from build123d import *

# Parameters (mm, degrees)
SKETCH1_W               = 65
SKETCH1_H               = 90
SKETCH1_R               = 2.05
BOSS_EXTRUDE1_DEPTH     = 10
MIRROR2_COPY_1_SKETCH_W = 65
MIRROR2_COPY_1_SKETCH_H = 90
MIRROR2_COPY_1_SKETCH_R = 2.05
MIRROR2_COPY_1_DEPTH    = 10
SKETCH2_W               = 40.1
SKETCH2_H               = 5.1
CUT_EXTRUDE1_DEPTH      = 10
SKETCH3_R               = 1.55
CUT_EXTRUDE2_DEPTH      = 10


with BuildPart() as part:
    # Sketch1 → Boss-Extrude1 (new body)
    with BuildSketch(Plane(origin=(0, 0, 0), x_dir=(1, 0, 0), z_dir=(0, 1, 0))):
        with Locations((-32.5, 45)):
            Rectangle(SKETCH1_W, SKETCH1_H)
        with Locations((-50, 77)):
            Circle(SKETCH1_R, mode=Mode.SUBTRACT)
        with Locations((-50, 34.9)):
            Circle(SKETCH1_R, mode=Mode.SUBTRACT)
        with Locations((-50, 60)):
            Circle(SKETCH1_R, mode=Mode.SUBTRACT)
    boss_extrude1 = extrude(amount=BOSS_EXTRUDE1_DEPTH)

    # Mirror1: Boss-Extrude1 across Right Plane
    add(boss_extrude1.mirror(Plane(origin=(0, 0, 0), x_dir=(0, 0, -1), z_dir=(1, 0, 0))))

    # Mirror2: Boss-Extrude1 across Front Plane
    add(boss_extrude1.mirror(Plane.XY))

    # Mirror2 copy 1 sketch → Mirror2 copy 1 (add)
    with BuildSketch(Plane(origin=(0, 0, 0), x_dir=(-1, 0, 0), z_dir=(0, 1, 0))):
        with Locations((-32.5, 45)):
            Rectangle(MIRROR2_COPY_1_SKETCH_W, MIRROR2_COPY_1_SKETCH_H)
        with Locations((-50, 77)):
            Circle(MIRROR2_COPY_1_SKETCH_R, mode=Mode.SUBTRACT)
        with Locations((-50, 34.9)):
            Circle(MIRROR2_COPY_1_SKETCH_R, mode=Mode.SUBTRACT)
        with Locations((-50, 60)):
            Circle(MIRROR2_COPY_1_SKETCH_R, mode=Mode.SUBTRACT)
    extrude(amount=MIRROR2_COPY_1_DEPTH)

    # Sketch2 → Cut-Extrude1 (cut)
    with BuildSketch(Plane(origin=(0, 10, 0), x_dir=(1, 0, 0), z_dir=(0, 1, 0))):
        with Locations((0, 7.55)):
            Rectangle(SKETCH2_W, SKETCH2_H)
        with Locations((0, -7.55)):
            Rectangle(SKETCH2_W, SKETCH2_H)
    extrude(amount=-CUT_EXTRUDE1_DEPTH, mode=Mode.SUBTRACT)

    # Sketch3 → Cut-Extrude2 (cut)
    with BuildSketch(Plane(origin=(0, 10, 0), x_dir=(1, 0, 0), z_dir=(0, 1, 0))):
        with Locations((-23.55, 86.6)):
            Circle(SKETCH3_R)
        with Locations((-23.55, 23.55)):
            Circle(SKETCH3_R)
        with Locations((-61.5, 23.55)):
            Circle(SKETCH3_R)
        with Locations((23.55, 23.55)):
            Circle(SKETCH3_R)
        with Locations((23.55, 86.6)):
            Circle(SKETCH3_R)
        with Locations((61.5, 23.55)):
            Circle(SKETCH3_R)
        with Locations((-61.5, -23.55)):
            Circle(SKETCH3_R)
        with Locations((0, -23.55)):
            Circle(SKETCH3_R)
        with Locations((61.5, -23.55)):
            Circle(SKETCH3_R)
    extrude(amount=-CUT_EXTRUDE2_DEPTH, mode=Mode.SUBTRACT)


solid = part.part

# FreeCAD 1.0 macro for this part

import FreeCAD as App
import Part
import Sketcher
from FreeCAD import Vector
Q = App.Units.Quantity


def add_polygon(sketch, points):
    """Adds a closed chain of lines whose ends are joined by coincident constraints."""
    first, n = sketch.GeometryCount, len(points)
    for a, b in zip(points, points[1:] + points[:1]):
        sketch.addGeometry(Part.LineSegment(App.Vector(*a, 0), App.Vector(*b, 0)), False)
    for i in range(n):
        sketch.addConstraint(Sketcher.Constraint("Coincident", first + i, 2, first + (i + 1) % n, 1))

doc = App.newDocument("Part")
body = doc.addObject("PartDesign::Body", "Body")

sketch1 = doc.addObject("Sketcher::SketchObject", "Sketch")
body.addObject(sketch1)
sketch1.AttachmentSupport = (doc.XZ_Plane, [""])
sketch1.MapMode = "FlatFace"
add_polygon(sketch1, [(-65, -90), (-65, 0), (0, 0), (0, -90)])
sketch1.addGeometry(Part.Circle(Vector(-50, -34.9, 0), Vector(0, 0, 1), 2), False)
sketch1.addGeometry(Part.Circle(Vector(-50, -60, 0), Vector(0, 0, 1), 2), False)
sketch1.addGeometry(Part.Circle(Vector(-50, -77, 0), Vector(0, 0, 1), 2), False)
sketch1.addConstraint([
    Sketcher.Constraint("Vertical", 0),
    Sketcher.Constraint("Horizontal", 1),
    Sketcher.Constraint("Vertical", 2),
    Sketcher.Constraint("Horizontal", 3),
    Sketcher.Constraint("Coincident", 1, 2, -1, 1),
    Sketcher.Constraint("Equal", 4, 5),
    Sketcher.Constraint("Equal", 5, 6),
    Sketcher.Constraint("Vertical", 4, 3, 5, 3),
    Sketcher.Constraint("Vertical", 5, 3, 6, 3),
    Sketcher.Constraint("Diameter", 4, Q("4.1 mm")),
    Sketcher.Constraint("DistanceX", 1, 1, 1, 2, Q("65 mm")),
    Sketcher.Constraint("DistanceY", 0, 1, 0, 2, Q("90 mm")),
    Sketcher.Constraint("DistanceX", 4, 3, -1, 1, Q("50 mm")),
    Sketcher.Constraint("DistanceY", 5, 3, -1, 1, Q("60 mm")),
    Sketcher.Constraint("DistanceY", 6, 3, -1, 1, Q("77 mm")),
    Sketcher.Constraint("DistanceY", 4, 3, -1, 1, Q("34.9 mm")),
])
pad1 = doc.addObject("PartDesign::Pad", "Pad")
body.addObject(pad1)
pad1.Profile = sketch1
pad1.Length = 10
pad1.Reversed = True
doc.recompute()

mirrored = doc.addObject("PartDesign::Mirrored", "Mirrored")
body.addObject(mirrored)
mirrored.Originals = [pad1]
mirrored.MirrorPlane = (doc.YZ_Plane, [""])
body.Tip = mirrored
doc.recompute()

mirrored2 = doc.addObject("PartDesign::Mirrored", "Mirrored001")
body.addObject(mirrored2)
mirrored2.Originals = [pad1]
mirrored2.MirrorPlane = (doc.XY_Plane, [""])
body.Tip = mirrored2

sketch2 = doc.addObject("Sketcher::SketchObject", "Sketch001")
body.addObject(sketch2)
sketch2.AttachmentSupport = (doc.XZ_Plane, [""])
sketch2.MapMode = "FlatFace"
add_polygon(sketch2, [(65, 90), (65, 0), (0, 0), (0, 90)])
sketch2.addGeometry(Part.Circle(Vector(50, 34.9, 0), Vector(0, 0, 1), 2), False)
sketch2.addGeometry(Part.Circle(Vector(50, 60, 0), Vector(0, 0, 1), 2), False)
sketch2.addGeometry(Part.Circle(Vector(50, 77, 0), Vector(0, 0, 1), 2), False)
sketch2.addConstraint([
    Sketcher.Constraint("Vertical", 0),
    Sketcher.Constraint("Horizontal", 1),
    Sketcher.Constraint("Vertical", 2),
    Sketcher.Constraint("Horizontal", 3),
    Sketcher.Constraint("Coincident", 1, 2, -1, 1),
    Sketcher.Constraint("Equal", 4, 5),
    Sketcher.Constraint("Equal", 5, 6),
    Sketcher.Constraint("Vertical", 4, 3, 5, 3),
    Sketcher.Constraint("Vertical", 5, 3, 6, 3),
    Sketcher.Constraint("Diameter", 4, Q("4.1 mm")),
    Sketcher.Constraint("DistanceX", 1, 2, 1, 1, Q("65 mm")),
    Sketcher.Constraint("DistanceY", 0, 2, 0, 1, Q("90 mm")),
    Sketcher.Constraint("DistanceX", -1, 1, 4, 3, Q("50 mm")),
    Sketcher.Constraint("DistanceY", -1, 1, 5, 3, Q("60 mm")),
    Sketcher.Constraint("DistanceY", -1, 1, 6, 3, Q("77 mm")),
    Sketcher.Constraint("DistanceY", -1, 1, 4, 3, Q("34.9 mm")),
])
pad2 = doc.addObject("PartDesign::Pad", "Pad001")
body.addObject(pad2)
pad2.Profile = sketch2
pad2.Length = 10
pad2.Reversed = True

sketch3 = doc.addObject("Sketcher::SketchObject", "Sketch002")
body.addObject(sketch3)
sketch3.AttachmentSupport = (doc.XZ_Plane, [""])
sketch3.MapMode = "FlatFace"
sketch3.AttachmentOffset = App.Placement(Vector(0, 0, -10), App.Rotation())
add_polygon(sketch3, [(-20, -10), (-20, -5), (20, -5), (20, -10)])
add_polygon(sketch3, [(-20, 5), (-20, 10), (20, 10), (20, 5)])
sketch3.addConstraint([
    Sketcher.Constraint("Vertical", 0),
    Sketcher.Constraint("Horizontal", 1),
    Sketcher.Constraint("Vertical", 2),
    Sketcher.Constraint("Horizontal", 3),
    Sketcher.Constraint("Vertical", 4),
    Sketcher.Constraint("Horizontal", 5),
    Sketcher.Constraint("Vertical", 6),
    Sketcher.Constraint("Horizontal", 7),
    Sketcher.Constraint("Symmetric", 2, 2, 4, 2, -1, 1),
    Sketcher.Constraint("Symmetric", 0, 2, 6, 2, -1, 1),
    Sketcher.Constraint("Vertical", 3, 2, 4, 2),
    Sketcher.Constraint("DistanceX", 1, 1, 1, 2, Q("40.1 mm")),
    Sketcher.Constraint("DistanceY", 0, 1, 0, 2, Q("5.1 mm")),
    Sketcher.Constraint("DistanceY", 0, 2, -1, 1, Q("5 mm")),
])
pocket1 = doc.addObject("PartDesign::Pocket", "Pocket")
body.addObject(pocket1)
pocket1.Profile = sketch3
pocket1.Length = 10
pocket1.Reversed = True

sketch4 = doc.addObject("Sketcher::SketchObject", "Sketch003")
body.addObject(sketch4)
sketch4.AttachmentSupport = (doc.XZ_Plane, [""])
sketch4.MapMode = "FlatFace"
sketch4.AttachmentOffset = App.Placement(Vector(0, 0, -10), App.Rotation())
sketch4.addGeometry([
    Part.Circle(Vector(-23.6, -86.6, 0), Vector(0, 0, 1), 1.6),
    Part.Circle(Vector(-23.6, -23.6, 0), Vector(0, 0, 1), 1.6),
    Part.Circle(Vector(-61.5, -23.6, 0), Vector(0, 0, 1), 1.6),
    Part.Circle(Vector(23.6, -23.6, 0), Vector(0, 0, 1), 1.6),
    Part.Circle(Vector(23.6, -86.6, 0), Vector(0, 0, 1), 1.6),
    Part.Circle(Vector(61.5, -23.6, 0), Vector(0, 0, 1), 1.6),
    Part.Circle(Vector(-61.5, 23.6, 0), Vector(0, 0, 1), 1.6),
    Part.Circle(Vector(0, 23.6, 0), Vector(0, 0, 1), 1.6),
    Part.Circle(Vector(61.5, 23.6, 0), Vector(0, 0, 1), 1.6),
], False)
sketch4.addConstraint([
    Sketcher.Constraint("Equal", 0, 1),
    Sketcher.Constraint("Equal", 1, 2),
    Sketcher.Constraint("Equal", 2, 3),
    Sketcher.Constraint("Equal", 3, 4),
    Sketcher.Constraint("Equal", 4, 5),
    Sketcher.Constraint("Equal", 5, 6),
    Sketcher.Constraint("Equal", 6, 7),
    Sketcher.Constraint("Equal", 7, 8),
    Sketcher.Constraint("Symmetric", 5, 3, 6, 3, -1, 1),
    Sketcher.Constraint("Symmetric", 2, 3, 8, 3, -1, 1),
    Sketcher.Constraint("Symmetric", 1, 3, 3, 3, -2),
    Sketcher.Constraint("Symmetric", 0, 3, 4, 3, -2),
    Sketcher.Constraint("Symmetric", 2, 3, 5, 3, -2),
    Sketcher.Constraint("PointOnObject", 7, 3, -2),
    Sketcher.Constraint("Horizontal", 1, 3, 2, 3),
    Sketcher.Constraint("Horizontal", 6, 3, 7, 3),
    Sketcher.Constraint("Vertical", 0, 3, 1, 3),
    Sketcher.Constraint("Diameter", 0, Q("3.1 mm")),
    Sketcher.Constraint("DistanceX", 2, 3, 5, 3, Q("123 mm")),
    Sketcher.Constraint("DistanceY", 0, 3, -1, 1, Q("86.6 mm")),
    Sketcher.Constraint("DistanceX", 1, 3, 3, 3, Q("47.1 mm")),
    Sketcher.Constraint("DistanceY", 2, 3, 6, 3, Q("47.1 mm")),
])
pocket2 = doc.addObject("PartDesign::Pocket", "Pocket001")
body.addObject(pocket2)
pocket2.Profile = sketch4
pocket2.Length = 10
pocket2.Reversed = True

doc.recompute()
